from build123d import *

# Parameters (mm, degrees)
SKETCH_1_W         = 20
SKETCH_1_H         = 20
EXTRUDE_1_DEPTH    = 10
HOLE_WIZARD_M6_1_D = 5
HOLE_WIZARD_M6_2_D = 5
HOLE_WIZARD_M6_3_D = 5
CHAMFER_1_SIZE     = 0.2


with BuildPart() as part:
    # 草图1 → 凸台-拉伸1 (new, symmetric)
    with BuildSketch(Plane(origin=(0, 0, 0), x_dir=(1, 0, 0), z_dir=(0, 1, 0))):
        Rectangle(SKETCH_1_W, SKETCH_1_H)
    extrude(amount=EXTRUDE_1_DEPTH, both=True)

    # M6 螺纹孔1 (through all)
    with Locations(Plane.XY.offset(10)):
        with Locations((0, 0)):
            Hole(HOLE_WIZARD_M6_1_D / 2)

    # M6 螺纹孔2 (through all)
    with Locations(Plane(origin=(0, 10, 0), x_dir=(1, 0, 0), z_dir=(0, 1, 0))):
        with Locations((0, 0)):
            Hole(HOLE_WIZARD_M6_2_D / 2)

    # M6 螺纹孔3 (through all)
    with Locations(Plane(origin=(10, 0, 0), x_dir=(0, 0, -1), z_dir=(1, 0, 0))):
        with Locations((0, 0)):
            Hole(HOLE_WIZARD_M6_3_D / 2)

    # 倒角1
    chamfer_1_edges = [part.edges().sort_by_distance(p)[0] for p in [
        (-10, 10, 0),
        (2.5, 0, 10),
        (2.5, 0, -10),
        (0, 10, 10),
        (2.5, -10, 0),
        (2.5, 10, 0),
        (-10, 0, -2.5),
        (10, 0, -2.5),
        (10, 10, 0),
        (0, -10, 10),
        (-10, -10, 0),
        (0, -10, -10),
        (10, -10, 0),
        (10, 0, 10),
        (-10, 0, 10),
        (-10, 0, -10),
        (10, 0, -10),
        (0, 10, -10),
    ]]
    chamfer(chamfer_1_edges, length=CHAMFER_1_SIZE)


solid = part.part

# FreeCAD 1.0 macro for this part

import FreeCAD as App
import Part
import Sketcher
Q = App.Units.Quantity


def edges_at(feature, points):
    """Names of the edges that pass closest to the given points."""
    edges = feature.Shape.Edges
    near = lambda p: min(range(len(edges)), key=lambda i: edges[i].distToShape(Part.Vertex(*p))[0])
    return sorted({f"Edge{near(p) + 1}" for p in points})

doc = App.newDocument("Part")
body = doc.addObject("PartDesign::Body", "Body")

# Sketch on XZ plane
sketch1 = doc.addObject("Sketcher::SketchObject", "Sketch")
body.addObject(sketch1)
sketch1.AttachmentSupport = (doc.XZ_Plane, [""])
sketch1.MapMode = "FlatFace"
sketch1.addGeometry([
    Part.LineSegment(App.Vector(-10, -10, 0), App.Vector(-10, 10, 0)),
    Part.LineSegment(App.Vector(-10, 10, 0), App.Vector(10, 10, 0)),
    Part.LineSegment(App.Vector(10, 10, 0), App.Vector(10, -10, 0)),
    Part.LineSegment(App.Vector(10, -10, 0), App.Vector(-10, -10, 0)),
], False)
sketch1.addConstraint([
    Sketcher.Constraint("Coincident", 0, 2, 1, 1),
    Sketcher.Constraint("Coincident", 1, 2, 2, 1),
    Sketcher.Constraint("Coincident", 2, 2, 3, 1),
    Sketcher.Constraint("Coincident", 3, 2, 0, 1),
    Sketcher.Constraint("Vertical", 0),
    Sketcher.Constraint("Horizontal", 1),
    Sketcher.Constraint("Vertical", 2),
    Sketcher.Constraint("Horizontal", 3),
    Sketcher.Constraint("Symmetric", 0, 2, 2, 2, -1, 1),
    Sketcher.Constraint("Equal", 3, 0),
    Sketcher.Constraint("DistanceX", 1, 1, 1, 2, Q("20 mm")),
])
pad1 = doc.addObject("PartDesign::Pad", "Pad")
body.addObject(pad1)
pad1.Profile = sketch1
pad1.Length = 20
pad1.Midplane = True

# Sketch on XY plane
sketch2 = doc.addObject("Sketcher::SketchObject", "Sketch001")
body.addObject(sketch2)
sketch2.AttachmentSupport = (doc.XY_Plane, [""])
sketch2.MapMode = "FlatFace"
sketch2.AttachmentOffset = App.Placement(App.Vector(0, 0, 10), App.Rotation())
sketch2.addGeometry(Part.Circle(App.Vector(0, 0, 0), App.Vector(0, 0, 1), 2.5), False)
sketch2.addConstraint([
    Sketcher.Constraint("Coincident", 0, 3, -1, 1),
    Sketcher.Constraint("Diameter", 0, Q("5 mm")),
])
doc.recompute()
hole = doc.addObject("PartDesign::Hole", "Hole")
body.addObject(hole)
hole.Profile = sketch2
hole.ThreadType = "None"
hole.Diameter = 5
hole.DepthType = "ThroughAll"

# Sketch on XZ plane
sketch3 = doc.addObject("Sketcher::SketchObject", "Sketch002")
body.addObject(sketch3)
sketch3.AttachmentSupport = (doc.XZ_Plane, [""])
sketch3.MapMode = "FlatFace"
sketch3.AttachmentOffset = App.Placement(App.Vector(0, 0, -10), App.Rotation())
sketch3.addGeometry(Part.Circle(App.Vector(0, 0, 0), App.Vector(0, 0, 1), 2.5), False)
sketch3.addConstraint([
    Sketcher.Constraint("Coincident", 0, 3, -1, 1),
    Sketcher.Constraint("Diameter", 0, Q("5 mm")),
])
doc.recompute()
hole2 = doc.addObject("PartDesign::Hole", "Hole001")
body.addObject(hole2)
hole2.Profile = sketch3
hole2.ThreadType = "None"
hole2.Diameter = 5
hole2.DepthType = "ThroughAll"
hole2.Reversed = True

# Sketch on YZ plane
sketch4 = doc.addObject("Sketcher::SketchObject", "Sketch003")
body.addObject(sketch4)
sketch4.AttachmentSupport = (doc.YZ_Plane, [""])
sketch4.MapMode = "FlatFace"
sketch4.AttachmentOffset = App.Placement(App.Vector(0, 0, 10), App.Rotation())
sketch4.addGeometry(Part.Circle(App.Vector(0, 0, 0), App.Vector(0, 0, 1), 2.5), False)
sketch4.addConstraint([
    Sketcher.Constraint("Coincident", 0, 3, -1, 1),
    Sketcher.Constraint("Diameter", 0, Q("5 mm")),
])
doc.recompute()
hole3 = doc.addObject("PartDesign::Hole", "Hole002")
body.addObject(hole3)
hole3.Profile = sketch4
hole3.ThreadType = "None"
hole3.Diameter = 5
hole3.DepthType = "ThroughAll"
doc.recompute()

chamfer = doc.addObject("PartDesign::Chamfer", "Chamfer")
body.addObject(chamfer)
chamfer.Base = (hole3, edges_at(hole3, [
    (-10, 10, 0),
    (2.5, 0, 10),
    (2.5, 0, -10),
    (0, 10, 10),
    (2.5, -10, 0),
    (2.5, 10, 0),
    (-10, 0, -2.5),
    (10, 0, -2.5),
    (10, 10, 0),
    (0, -10, 10),
    (-10, -10, 0),
    (0, -10, -10),
    (10, -10, 0),
    (10, 0, 10),
    (-10, 0, 10),
    (-10, 0, -10),
    (10, 0, -10),
    (0, 10, -10),
]))
chamfer.Size = 0.2

doc.recompute()
